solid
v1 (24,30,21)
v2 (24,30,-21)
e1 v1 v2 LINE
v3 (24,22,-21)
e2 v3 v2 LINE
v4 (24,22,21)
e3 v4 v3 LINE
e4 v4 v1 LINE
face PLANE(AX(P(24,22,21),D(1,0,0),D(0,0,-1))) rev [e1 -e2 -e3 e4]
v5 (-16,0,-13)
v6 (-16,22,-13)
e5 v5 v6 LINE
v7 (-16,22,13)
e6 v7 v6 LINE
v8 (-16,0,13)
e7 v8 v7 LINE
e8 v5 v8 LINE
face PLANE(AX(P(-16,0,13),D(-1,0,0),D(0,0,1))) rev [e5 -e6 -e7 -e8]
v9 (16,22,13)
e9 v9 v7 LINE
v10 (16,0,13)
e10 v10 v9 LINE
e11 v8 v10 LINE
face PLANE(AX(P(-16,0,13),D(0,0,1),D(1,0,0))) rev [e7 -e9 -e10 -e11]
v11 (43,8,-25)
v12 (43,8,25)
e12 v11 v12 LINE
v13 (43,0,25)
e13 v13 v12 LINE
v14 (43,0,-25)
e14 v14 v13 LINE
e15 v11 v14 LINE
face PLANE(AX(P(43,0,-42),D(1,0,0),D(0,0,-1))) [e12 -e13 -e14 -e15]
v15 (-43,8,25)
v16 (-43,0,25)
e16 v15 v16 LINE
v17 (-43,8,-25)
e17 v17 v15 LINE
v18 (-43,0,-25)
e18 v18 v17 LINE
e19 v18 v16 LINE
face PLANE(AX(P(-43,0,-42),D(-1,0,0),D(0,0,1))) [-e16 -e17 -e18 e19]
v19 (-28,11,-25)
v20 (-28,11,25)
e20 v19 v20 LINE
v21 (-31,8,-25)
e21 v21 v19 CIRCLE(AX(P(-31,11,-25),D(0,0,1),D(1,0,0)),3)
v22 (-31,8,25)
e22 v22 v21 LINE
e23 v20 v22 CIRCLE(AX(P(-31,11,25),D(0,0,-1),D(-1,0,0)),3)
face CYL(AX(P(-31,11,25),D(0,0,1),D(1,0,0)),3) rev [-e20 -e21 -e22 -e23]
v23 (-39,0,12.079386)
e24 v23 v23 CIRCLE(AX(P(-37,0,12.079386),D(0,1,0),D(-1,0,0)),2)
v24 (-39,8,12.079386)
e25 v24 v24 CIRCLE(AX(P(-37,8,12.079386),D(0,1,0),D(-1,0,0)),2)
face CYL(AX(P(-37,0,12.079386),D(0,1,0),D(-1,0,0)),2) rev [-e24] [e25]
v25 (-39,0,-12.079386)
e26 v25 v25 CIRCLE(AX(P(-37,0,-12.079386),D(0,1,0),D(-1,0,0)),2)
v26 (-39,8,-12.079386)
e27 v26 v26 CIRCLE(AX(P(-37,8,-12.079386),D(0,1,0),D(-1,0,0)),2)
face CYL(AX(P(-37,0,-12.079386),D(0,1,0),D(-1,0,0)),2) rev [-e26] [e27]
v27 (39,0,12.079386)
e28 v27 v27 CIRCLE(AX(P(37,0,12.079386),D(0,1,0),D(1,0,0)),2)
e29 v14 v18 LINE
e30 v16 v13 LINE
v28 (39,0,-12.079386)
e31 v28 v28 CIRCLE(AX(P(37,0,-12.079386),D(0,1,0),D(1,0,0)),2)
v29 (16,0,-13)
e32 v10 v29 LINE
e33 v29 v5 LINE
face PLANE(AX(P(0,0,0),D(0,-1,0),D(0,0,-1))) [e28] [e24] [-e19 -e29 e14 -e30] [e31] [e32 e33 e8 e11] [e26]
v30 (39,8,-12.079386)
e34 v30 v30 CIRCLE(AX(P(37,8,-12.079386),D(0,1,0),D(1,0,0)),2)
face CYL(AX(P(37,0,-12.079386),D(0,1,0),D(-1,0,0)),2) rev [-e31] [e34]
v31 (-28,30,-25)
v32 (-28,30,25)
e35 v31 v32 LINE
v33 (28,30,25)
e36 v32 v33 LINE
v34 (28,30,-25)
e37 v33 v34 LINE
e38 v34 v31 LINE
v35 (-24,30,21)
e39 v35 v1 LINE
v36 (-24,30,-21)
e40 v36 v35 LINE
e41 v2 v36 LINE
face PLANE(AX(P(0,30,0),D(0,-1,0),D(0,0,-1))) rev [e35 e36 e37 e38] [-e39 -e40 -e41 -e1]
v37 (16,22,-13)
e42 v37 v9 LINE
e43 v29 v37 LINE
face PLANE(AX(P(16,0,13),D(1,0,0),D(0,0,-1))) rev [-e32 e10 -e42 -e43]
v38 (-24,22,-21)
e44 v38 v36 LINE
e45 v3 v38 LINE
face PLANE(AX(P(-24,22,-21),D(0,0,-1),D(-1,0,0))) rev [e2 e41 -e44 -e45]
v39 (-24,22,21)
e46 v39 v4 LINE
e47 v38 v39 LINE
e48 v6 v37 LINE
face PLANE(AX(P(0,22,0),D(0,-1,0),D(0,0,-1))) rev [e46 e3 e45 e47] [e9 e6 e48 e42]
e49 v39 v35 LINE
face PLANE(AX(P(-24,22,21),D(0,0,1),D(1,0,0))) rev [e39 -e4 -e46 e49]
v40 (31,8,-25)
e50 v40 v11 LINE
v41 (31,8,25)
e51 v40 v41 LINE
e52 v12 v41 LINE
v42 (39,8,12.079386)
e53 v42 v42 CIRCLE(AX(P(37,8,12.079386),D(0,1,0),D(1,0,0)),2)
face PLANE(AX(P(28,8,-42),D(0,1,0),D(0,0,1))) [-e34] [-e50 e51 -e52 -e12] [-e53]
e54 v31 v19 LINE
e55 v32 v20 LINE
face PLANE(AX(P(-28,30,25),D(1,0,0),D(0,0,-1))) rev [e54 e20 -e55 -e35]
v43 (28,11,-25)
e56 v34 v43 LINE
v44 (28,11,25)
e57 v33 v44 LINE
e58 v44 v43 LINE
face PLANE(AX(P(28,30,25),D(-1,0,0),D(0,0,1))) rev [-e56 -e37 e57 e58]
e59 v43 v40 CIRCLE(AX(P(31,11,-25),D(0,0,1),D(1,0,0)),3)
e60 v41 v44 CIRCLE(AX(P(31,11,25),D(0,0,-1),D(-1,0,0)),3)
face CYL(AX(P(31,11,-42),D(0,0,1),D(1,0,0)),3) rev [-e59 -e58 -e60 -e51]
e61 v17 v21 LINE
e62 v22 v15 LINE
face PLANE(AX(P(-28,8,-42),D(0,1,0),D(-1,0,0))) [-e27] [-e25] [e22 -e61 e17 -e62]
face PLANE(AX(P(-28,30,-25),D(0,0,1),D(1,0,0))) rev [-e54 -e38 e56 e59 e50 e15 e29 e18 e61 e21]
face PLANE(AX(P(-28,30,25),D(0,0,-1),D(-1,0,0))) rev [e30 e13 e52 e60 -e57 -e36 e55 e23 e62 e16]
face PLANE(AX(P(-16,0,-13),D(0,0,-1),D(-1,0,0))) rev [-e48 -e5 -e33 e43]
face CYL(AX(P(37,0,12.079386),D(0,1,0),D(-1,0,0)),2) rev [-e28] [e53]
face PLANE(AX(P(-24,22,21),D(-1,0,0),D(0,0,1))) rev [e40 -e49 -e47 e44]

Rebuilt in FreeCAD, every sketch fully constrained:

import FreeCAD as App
import Part
import Sketcher
Q = App.Units.Quantity


def edges_at(feature, points):
    """Names of the edges that pass closest to the given points."""
    edges = feature.Shape.Edges
    near = lambda p: min(range(len(edges)), key=lambda i: edges[i].distToShape(Part.Vertex(*p))[0])
    return sorted({f"Edge{near(p) + 1}" for p in points})


def add_polygon(sketch, points):
    """Adds a closed chain of lines whose ends are joined by coincident constraints."""
    first, n = sketch.GeometryCount, len(points)
    for a, b in zip(points, points[1:] + points[:1]):
        sketch.addGeometry(Part.LineSegment(App.Vector(*a, 0), App.Vector(*b, 0)), False)
    for i in range(n):
        sketch.addConstraint(Sketcher.Constraint("Coincident", first + i, 2, first + (i + 1) % n, 1))

doc = App.newDocument("Part")
body = doc.addObject("PartDesign::Body", "Body")

# Sketch on XZ plane
sketch1 = body.newObject("Sketcher::SketchObject", "Sketch")
sketch1.AttachmentSupport = (doc.getObject("XZ_Plane"), [""])
sketch1.MapMode = "FlatFace"
add_polygon(sketch1, [(-28, -25), (-28, 25), (28, 25), (28, -25)])  # lines 0-3
sketch1.addConstraint([
    Sketcher.Constraint("Vertical", 0),
    Sketcher.Constraint("Horizontal", 1),
    Sketcher.Constraint("Vertical", 2),
    Sketcher.Constraint("Horizontal", 3),
    Sketcher.Constraint("Symmetric", 0, 2, 2, 2, -1, 1),
    Sketcher.Constraint("DistanceX", 1, 1, 1, 2, Q("56 mm")),
    Sketcher.Constraint("DistanceY", 0, 1, 0, 2, Q("50 mm")),
])
pad1 = body.newObject("PartDesign::Pad", "Pad")
pad1.Profile = sketch1
pad1.Length = 30
pad1.Reversed = True

# Sketch on XZ plane
sketch2 = body.newObject("Sketcher::SketchObject", "Sketch001")
sketch2.AttachmentSupport = (doc.getObject("XZ_Plane"), [""])
sketch2.MapMode = "FlatFace"
sketch2.AttachmentOffset = App.Placement(App.Vector(0, 0, -30), App.Rotation())
add_polygon(sketch2, [(-24, -21), (-24, 21), (24, 21), (24, -21)])  # lines 0-3
sketch2.addConstraint([
    Sketcher.Constraint("Vertical", 0),
    Sketcher.Constraint("Horizontal", 1),
    Sketcher.Constraint("Vertical", 2),
    Sketcher.Constraint("Horizontal", 3),
    Sketcher.Constraint("Symmetric", 0, 2, 2, 2, -1, 1),
    Sketcher.Constraint("DistanceX", 1, 1, 1, 2, Q("48 mm")),
    Sketcher.Constraint("DistanceY", 0, 1, 0, 2, Q("42 mm")),
])
pocket1 = body.newObject("PartDesign::Pocket", "Pocket")
pocket1.Profile = sketch2
pocket1.Length = 8
pocket1.Reversed = True

# Sketch on XY plane
sketch3 = body.newObject("Sketcher::SketchObject", "Sketch002")
sketch3.AttachmentSupport = (doc.getObject("XY_Plane"), [""])
sketch3.MapMode = "FlatFace"
sketch3.AttachmentOffset = App.Placement(App.Vector(0, 0, 25), App.Rotation())
add_polygon(sketch3, [(-43, 8), (-43, 0), (-28, 0), (-28, 8)])  # lines 0-3
add_polygon(sketch3, [(28, 8), (28, 0), (43, 0), (43, 8)])  # lines 4-7
sketch3.addConstraint([
    Sketcher.Constraint("Vertical", 0),
    Sketcher.Constraint("Horizontal", 1),
    Sketcher.Constraint("Vertical", 2),
    Sketcher.Constraint("Horizontal", 3),
    Sketcher.Constraint("Vertical", 4),
    Sketcher.Constraint("Horizontal", 5),
    Sketcher.Constraint("Vertical", 6),
    Sketcher.Constraint("Horizontal", 7),
    Sketcher.Constraint("Symmetric", 1, 2, 4, 2, -1, 1),
    Sketcher.Constraint("Symmetric", 0, 2, 5, 2, -2),
    Sketcher.Constraint("Horizontal", 3, 2, 6, 2),
    Sketcher.Constraint("DistanceX", 1, 1, 1, 2, Q("15 mm")),
    Sketcher.Constraint("DistanceY", 0, 2, 0, 1, Q("8 mm")),
    Sketcher.Constraint("DistanceX", 0, 2, -1, 1, Q("43 mm")),
])
pad2 = body.newObject("PartDesign::Pad", "Pad001")
pad2.Profile = sketch3
pad2.Length = 50
pad2.Reversed = True
doc.recompute()

fillet = body.newObject("PartDesign::Fillet", "Fillet")
fillet.Base = (pad2, edges_at(pad2, [(-28, 8, 0), (28, 8, 0)]))
fillet.Radius = 3

# Sketch on XZ plane
sketch4 = body.newObject("Sketcher::SketchObject", "Sketch003")
sketch4.AttachmentSupport = (doc.getObject("XZ_Plane"), [""])
sketch4.MapMode = "FlatFace"
sketch4.AttachmentOffset = App.Placement(App.Vector(0, 0, -22), App.Rotation())
add_polygon(sketch4, [(-16, -13), (-16, 13), (16, 13), (16, -13)])  # lines 0-3
sketch4.addConstraint([
    Sketcher.Constraint("Vertical", 0),
    Sketcher.Constraint("Horizontal", 1),
    Sketcher.Constraint("Vertical", 2),
    Sketcher.Constraint("Horizontal", 3),
    Sketcher.Constraint("Symmetric", 0, 2, 2, 2, -1, 1),
    Sketcher.Constraint("DistanceX", 1, 1, 1, 2, Q("32 mm")),
    Sketcher.Constraint("DistanceY", 0, 1, 0, 2, Q("26 mm")),
])
pocket2 = body.newObject("PartDesign::Pocket", "Pocket001")
pocket2.Profile = sketch4
pocket2.Type = "ThroughAll"
pocket2.Midplane = True

# Sketch on XZ plane
sketch5 = body.newObject("Sketcher::SketchObject", "Sketch004")
sketch5.AttachmentSupport = (doc.getObject("XZ_Plane"), [""])
sketch5.MapMode = "FlatFace"
sketch5.AttachmentOffset = App.Placement(App.Vector(0, 0, -8), App.Rotation())
sketch5.addGeometry([
    Part.Circle(App.Vector(-37, -12.1, 0), App.Vector(0, 0, 1), 2),
    Part.Circle(App.Vector(-37, 12.1, 0), App.Vector(0, 0, 1), 2),
    Part.Circle(App.Vector(37, 12.1, 0), App.Vector(0, 0, 1), 2),
    Part.Circle(App.Vector(37, -12.1, 0), App.Vector(0, 0, 1), 2),
], False)
sketch5.addConstraint([
    Sketcher.Constraint("Equal", 0, 1),
    Sketcher.Constraint("Equal", 1, 2),
    Sketcher.Constraint("Equal", 2, 3),
    Sketcher.Constraint("Symmetric", 0, 3, 2, 3, -1, 1),
    Sketcher.Constraint("Symmetric", 1, 3, 3, 3, -1, 1),
    Sketcher.Constraint("Symmetric", 1, 3, 2, 3, -2),
    Sketcher.Constraint("Diameter", 0, Q("4 mm")),
    Sketcher.Constraint("DistanceX", 0, 3, -1, 1, Q("37 mm")),
    Sketcher.Constraint("DistanceY", 0, 3, 1, 3, Q("24.158772 mm")),
])
pocket3 = body.newObject("PartDesign::Pocket", "Pocket002")
pocket3.Profile = sketch5
pocket3.Type = "ThroughAll"
pocket3.Midplane = True

doc.recompute()
